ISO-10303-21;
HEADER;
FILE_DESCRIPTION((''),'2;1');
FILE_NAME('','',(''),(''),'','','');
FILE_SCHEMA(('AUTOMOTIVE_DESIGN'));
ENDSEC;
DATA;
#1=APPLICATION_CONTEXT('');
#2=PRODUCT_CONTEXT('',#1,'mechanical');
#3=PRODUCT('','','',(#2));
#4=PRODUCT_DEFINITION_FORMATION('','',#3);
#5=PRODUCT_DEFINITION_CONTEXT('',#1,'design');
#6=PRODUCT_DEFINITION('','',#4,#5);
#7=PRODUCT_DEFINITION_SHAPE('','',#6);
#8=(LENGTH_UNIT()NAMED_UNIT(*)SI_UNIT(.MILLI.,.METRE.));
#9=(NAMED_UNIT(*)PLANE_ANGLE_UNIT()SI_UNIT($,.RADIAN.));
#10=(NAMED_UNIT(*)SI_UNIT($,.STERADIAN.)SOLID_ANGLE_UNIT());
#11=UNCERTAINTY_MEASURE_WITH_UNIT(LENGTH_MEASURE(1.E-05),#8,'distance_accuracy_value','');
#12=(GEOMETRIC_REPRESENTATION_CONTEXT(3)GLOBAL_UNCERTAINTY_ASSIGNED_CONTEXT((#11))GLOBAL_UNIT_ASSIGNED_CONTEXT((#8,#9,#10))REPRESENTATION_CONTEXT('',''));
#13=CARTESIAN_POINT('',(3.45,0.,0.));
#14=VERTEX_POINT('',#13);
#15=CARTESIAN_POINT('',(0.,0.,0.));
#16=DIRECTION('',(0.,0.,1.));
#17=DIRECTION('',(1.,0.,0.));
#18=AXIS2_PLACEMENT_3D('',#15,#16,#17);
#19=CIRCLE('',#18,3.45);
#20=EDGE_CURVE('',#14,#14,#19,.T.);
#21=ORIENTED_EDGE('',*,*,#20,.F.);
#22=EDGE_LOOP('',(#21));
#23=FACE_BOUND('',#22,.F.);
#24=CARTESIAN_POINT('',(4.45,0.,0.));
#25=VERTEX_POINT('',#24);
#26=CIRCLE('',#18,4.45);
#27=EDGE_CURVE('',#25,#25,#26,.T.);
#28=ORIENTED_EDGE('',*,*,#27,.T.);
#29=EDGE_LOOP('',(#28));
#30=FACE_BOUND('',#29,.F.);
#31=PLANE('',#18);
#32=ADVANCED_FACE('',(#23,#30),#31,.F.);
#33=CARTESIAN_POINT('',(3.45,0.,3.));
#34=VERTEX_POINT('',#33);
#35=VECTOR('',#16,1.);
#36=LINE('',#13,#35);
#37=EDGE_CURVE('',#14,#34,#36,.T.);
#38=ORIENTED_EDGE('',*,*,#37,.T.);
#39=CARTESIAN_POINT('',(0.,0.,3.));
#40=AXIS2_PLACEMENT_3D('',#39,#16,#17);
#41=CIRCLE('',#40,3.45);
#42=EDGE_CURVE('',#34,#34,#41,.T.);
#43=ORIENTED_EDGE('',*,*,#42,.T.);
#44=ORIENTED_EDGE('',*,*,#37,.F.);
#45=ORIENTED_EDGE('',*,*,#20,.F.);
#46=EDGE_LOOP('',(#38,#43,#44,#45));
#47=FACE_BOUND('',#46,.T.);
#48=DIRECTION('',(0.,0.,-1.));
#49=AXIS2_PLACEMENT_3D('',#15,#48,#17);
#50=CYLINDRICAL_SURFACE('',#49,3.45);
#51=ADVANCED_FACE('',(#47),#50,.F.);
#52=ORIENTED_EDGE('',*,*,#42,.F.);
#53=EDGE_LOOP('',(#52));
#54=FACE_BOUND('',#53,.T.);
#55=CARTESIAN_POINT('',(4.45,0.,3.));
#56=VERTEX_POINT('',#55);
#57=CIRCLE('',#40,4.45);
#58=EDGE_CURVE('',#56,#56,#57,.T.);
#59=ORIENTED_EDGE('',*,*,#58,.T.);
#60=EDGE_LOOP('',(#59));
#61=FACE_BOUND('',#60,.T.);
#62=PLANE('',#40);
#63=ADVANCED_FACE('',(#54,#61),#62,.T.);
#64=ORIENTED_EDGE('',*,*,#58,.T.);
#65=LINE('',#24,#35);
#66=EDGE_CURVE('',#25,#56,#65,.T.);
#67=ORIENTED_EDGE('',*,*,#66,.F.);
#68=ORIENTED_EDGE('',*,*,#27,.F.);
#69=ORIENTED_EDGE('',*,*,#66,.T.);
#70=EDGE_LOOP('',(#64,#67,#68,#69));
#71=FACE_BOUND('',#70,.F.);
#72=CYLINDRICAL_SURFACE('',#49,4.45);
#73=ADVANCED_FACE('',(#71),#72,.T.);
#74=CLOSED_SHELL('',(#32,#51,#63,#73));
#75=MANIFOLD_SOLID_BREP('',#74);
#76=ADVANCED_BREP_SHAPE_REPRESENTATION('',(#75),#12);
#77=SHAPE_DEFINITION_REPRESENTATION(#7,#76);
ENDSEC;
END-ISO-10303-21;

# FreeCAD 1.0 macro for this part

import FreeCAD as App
import Part
import Sketcher
Q = App.Units.Quantity

doc = App.newDocument("Part")
body = doc.addObject("PartDesign::Body", "Body")

sketch1 = body.newObject("Sketcher::SketchObject", "Sketch")
sketch1.AttachmentSupport = (doc.getObject("XY_Plane"), [""])
sketch1.MapMode = "FlatFace"
sketch1.addGeometry(Part.Circle(App.Vector(0, 0, 0), App.Vector(0, 0, 1), 4.5), False)
sketch1.addGeometry(Part.Circle(App.Vector(0, 0, 0), App.Vector(0, 0, 1), 3.5), False)
sketch1.addConstraint(Sketcher.Constraint("Coincident", 0, 3, -1, 1))
sketch1.addConstraint(Sketcher.Constraint("Coincident", 1, 3, -1, 1))
sketch1.addConstraint(Sketcher.Constraint("Diameter", 1, Q("6.9 mm")))
sketch1.addConstraint(Sketcher.Constraint("Diameter", 0, Q("8.9 mm")))
pad1 = body.newObject("PartDesign::Pad", "Pad")
pad1.Profile = sketch1
pad1.Length = 3

doc.recompute()
